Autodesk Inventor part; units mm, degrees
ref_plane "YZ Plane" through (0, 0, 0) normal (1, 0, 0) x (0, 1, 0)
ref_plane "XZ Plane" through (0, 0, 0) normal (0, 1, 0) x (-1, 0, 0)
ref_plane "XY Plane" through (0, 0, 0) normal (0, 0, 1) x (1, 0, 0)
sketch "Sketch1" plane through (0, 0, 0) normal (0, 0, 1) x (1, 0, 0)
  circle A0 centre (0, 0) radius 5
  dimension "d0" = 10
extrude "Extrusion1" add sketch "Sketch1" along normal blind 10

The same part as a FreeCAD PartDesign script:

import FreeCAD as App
import Part
import Sketcher
from FreeCAD import Vector
Q = App.Units.Quantity

doc = App.newDocument("Part")
body = doc.addObject("PartDesign::Body", "Body")

# Sketch on XY plane
sketch1 = body.newObject("Sketcher::SketchObject", "Sketch")
sketch1.AttachmentSupport = (doc.getObject("XY_Plane"), [""])
sketch1.MapMode = "FlatFace"
sketch1.addGeometry(Part.Circle(Vector(0, 0, 0), Vector(0, 0, 1), 5), False)
sketch1.addConstraint(Sketcher.Constraint("Coincident", 0, 3, -1, 1))
sketch1.addConstraint(Sketcher.Constraint("Diameter", 0, Q("10 mm")))
pad1 = body.newObject("PartDesign::Pad", "Pad")
pad1.Profile = sketch1
pad1.Length = 10

doc.recompute()
